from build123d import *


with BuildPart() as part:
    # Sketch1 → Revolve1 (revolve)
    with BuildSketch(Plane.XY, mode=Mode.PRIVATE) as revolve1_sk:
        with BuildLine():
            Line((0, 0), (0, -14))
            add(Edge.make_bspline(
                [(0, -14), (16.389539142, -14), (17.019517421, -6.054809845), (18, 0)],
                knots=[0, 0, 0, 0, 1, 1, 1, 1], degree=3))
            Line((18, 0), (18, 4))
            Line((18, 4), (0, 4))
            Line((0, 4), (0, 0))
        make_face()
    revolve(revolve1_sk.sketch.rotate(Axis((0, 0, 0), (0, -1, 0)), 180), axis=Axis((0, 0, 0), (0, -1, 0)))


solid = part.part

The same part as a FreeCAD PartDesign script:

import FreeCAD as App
import Part
import Sketcher

V = App.Vector

doc = App.newDocument("Part")
body = doc.addObject("PartDesign::Body", "Body")

# Sketch on XY plane
sketch1 = body.newObject("Sketcher::SketchObject", "Sketch")
sketch1.AttachmentSupport = (doc.getObject("XY_Plane"), [""])
sketch1.MapMode = "FlatFace"
sketch1.addGeometry(Part.BSplineCurve([V(0, -14, 0), V(16.389539, -14, 0), V(17.019517, -6.05481, 0), V(18, 0, 0)], [4, 4], [0, 1], False, 3, [1, 1, 1, 1], False), False)
sketch1.addGeometry(Part.LineSegment(V(18, 0, 0), V(18, 4, 0)), False)
sketch1.addGeometry(Part.LineSegment(V(18, 4, 0), V(0, 4, 0)), False)
sketch1.addGeometry(Part.LineSegment(V(0, 4, 0), V(0, -14, 0)), False)
sketch1.addConstraint(Sketcher.Constraint("Block", 0))
sketch1.addConstraint(Sketcher.Constraint("Coincident", 0, 2, 1, 1))
sketch1.addConstraint(Sketcher.Constraint("Coincident", 1, 2, 2, 1))
sketch1.addConstraint(Sketcher.Constraint("Coincident", 2, 2, 3, 1))
sketch1.addConstraint(Sketcher.Constraint("Coincident", 3, 2, 0, 1))
sketch1.addConstraint(Sketcher.Constraint("Vertical", 1))
sketch1.addConstraint(Sketcher.Constraint("Horizontal", 2))
sketch1.addConstraint(Sketcher.Constraint("Vertical", 3))
sketch1.addConstraint(Sketcher.Constraint("DistanceY", 1, 1, 1, 2, 4.0))
revolution = body.newObject("PartDesign::Revolution", "Revolution")
revolution.Profile = sketch1
revolution.ReferenceAxis = (sketch1, ["V_Axis"])
revolution.Angle = 360

doc.recompute()
